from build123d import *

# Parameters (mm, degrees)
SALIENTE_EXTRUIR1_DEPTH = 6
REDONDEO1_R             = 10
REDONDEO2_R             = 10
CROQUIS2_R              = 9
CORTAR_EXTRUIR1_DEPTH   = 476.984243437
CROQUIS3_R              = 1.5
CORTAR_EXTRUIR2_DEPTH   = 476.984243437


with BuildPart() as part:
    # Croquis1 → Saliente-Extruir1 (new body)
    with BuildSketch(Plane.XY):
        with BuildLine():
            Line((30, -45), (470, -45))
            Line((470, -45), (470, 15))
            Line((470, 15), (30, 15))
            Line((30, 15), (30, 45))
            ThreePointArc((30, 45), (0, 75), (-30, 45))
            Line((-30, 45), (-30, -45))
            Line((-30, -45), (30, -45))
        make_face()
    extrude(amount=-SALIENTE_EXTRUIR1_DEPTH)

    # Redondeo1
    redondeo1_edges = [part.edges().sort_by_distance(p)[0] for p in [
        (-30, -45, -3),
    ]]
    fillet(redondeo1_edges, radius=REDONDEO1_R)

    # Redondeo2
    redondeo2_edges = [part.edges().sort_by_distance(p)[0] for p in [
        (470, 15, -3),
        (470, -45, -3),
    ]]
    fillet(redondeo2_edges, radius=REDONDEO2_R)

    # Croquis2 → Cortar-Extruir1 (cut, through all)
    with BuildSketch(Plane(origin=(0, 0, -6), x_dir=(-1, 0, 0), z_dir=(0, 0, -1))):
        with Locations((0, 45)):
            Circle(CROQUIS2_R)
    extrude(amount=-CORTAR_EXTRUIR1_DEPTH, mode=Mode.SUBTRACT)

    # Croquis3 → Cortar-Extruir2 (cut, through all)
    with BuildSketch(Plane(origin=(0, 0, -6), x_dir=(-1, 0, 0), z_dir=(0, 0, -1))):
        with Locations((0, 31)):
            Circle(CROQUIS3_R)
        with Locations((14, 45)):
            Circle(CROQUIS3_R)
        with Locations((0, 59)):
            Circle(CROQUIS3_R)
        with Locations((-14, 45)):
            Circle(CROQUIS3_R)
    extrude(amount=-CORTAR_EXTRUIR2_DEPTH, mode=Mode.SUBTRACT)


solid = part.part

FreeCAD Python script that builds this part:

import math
import FreeCAD as App
import Part
import Sketcher
Q = App.Units.Quantity


def edges_at(feature, points):
    """Names of the edges that pass closest to the given points."""
    edges = feature.Shape.Edges
    near = lambda p: min(range(len(edges)), key=lambda i: edges[i].distToShape(Part.Vertex(*p))[0])
    return sorted({f"Edge{near(p) + 1}" for p in points})

doc = App.newDocument("Part")
body = doc.addObject("PartDesign::Body", "Body")

# Sketch on XY plane
sketch1 = body.newObject("Sketcher::SketchObject", "Sketch")
sketch1.AttachmentSupport = (doc.getObject("XY_Plane"), [""])
sketch1.MapMode = "FlatFace"
sketch1.addGeometry([
    Part.LineSegment(App.Vector(470, -45, 0), App.Vector(470, 15, 0)),  # 0
    Part.LineSegment(App.Vector(470, 15, 0), App.Vector(30, 15, 0)),  # 1
    Part.LineSegment(App.Vector(30, 15, 0), App.Vector(30, 45, 0)),  # 2
    Part.ArcOfCircle(Part.Circle(App.Vector(0, 45, 0), App.Vector(0, 0, 1), 30), math.radians(0), math.radians(180)),  # 3
    Part.LineSegment(App.Vector(-30, 45, 0), App.Vector(-30, -45, 0)),  # 4
    Part.LineSegment(App.Vector(-30, -45, 0), App.Vector(470, -45, 0)),  # 5
], False)
sketch1.addConstraint([
    Sketcher.Constraint("Coincident", 0, 2, 1, 1),
    Sketcher.Constraint("Coincident", 1, 2, 2, 1),
    Sketcher.Constraint("Tangent", 2, 2, 3, 1),
    Sketcher.Constraint("Tangent", 3, 2, 4, 1),
    Sketcher.Constraint("Coincident", 4, 2, 5, 1),
    Sketcher.Constraint("Coincident", 5, 2, 0, 1),
    Sketcher.Constraint("Vertical", 0),
    Sketcher.Constraint("Horizontal", 1),
    Sketcher.Constraint("Vertical", 2),
    Sketcher.Constraint("Vertical", 4),
    Sketcher.Constraint("Horizontal", 5),
    Sketcher.Constraint("Symmetric", 2, 2, 4, 2, -1, 1),
    Sketcher.Constraint("Radius", 3, Q("30 mm")),
    Sketcher.Constraint("DistanceX", 1, 2, 1, 1, Q("440 mm")),
    Sketcher.Constraint("DistanceY", 0, 1, 0, 2, Q("60 mm")),
    Sketcher.Constraint("DistanceY", 2, 1, 2, 2, Q("30 mm")),
])
pad1 = body.newObject("PartDesign::Pad", "Pad")
pad1.Profile = sketch1
pad1.Length = 6
pad1.Reversed = True
doc.recompute()

fillet = body.newObject("PartDesign::Fillet", "Fillet")
fillet.Base = (pad1, edges_at(pad1, [(-30, -45, -3)]))
fillet.Radius = 10
doc.recompute()

fillet2 = body.newObject("PartDesign::Fillet", "Fillet001")
fillet2.Base = (fillet, edges_at(fillet, [(470, 15, -3), (470, -45, -3)]))
fillet2.Radius = 10

# Sketch on XY plane
sketch2 = body.newObject("Sketcher::SketchObject", "Sketch001")
sketch2.AttachmentSupport = (doc.getObject("XY_Plane"), [""])
sketch2.MapMode = "FlatFace"
sketch2.AttachmentOffset = App.Placement(App.Vector(0, 0, -6), App.Rotation())
sketch2.addGeometry(Part.Circle(App.Vector(0, 45, 0), App.Vector(0, 0, 1), 9), False)
sketch2.addConstraint([
    Sketcher.Constraint("PointOnObject", 0, 3, -2),
    Sketcher.Constraint("Diameter", 0, Q("18 mm")),
    Sketcher.Constraint("DistanceY", -1, 1, 0, 3, Q("45 mm")),
])
pocket1 = body.newObject("PartDesign::Pocket", "Pocket")
pocket1.Profile = sketch2
pocket1.Type = "ThroughAll"
pocket1.Reversed = True

# Sketch on XY plane
sketch3 = body.newObject("Sketcher::SketchObject", "Sketch002")
sketch3.AttachmentSupport = (doc.getObject("XY_Plane"), [""])
sketch3.MapMode = "FlatFace"
sketch3.AttachmentOffset = App.Placement(App.Vector(0, 0, -6), App.Rotation())
sketch3.addGeometry([
    Part.Circle(App.Vector(0, 31, 0), App.Vector(0, 0, 1), 1.5),
    Part.Circle(App.Vector(-14, 45, 0), App.Vector(0, 0, 1), 1.5),
    Part.Circle(App.Vector(0, 59, 0), App.Vector(0, 0, 1), 1.5),
    Part.Circle(App.Vector(14, 45, 0), App.Vector(0, 0, 1), 1.5),
], False)
sketch3.addConstraint([
    Sketcher.Constraint("Equal", 0, 1),
    Sketcher.Constraint("Equal", 1, 2),
    Sketcher.Constraint("Equal", 2, 3),
    Sketcher.Constraint("Symmetric", 1, 3, 3, 3, -2),
    Sketcher.Constraint("PointOnObject", 0, 3, -2),
    Sketcher.Constraint("PointOnObject", 2, 3, -2),
    Sketcher.Constraint("Diameter", 0, Q("3 mm")),
    Sketcher.Constraint("DistanceY", -1, 1, 0, 3, Q("31 mm")),
    Sketcher.Constraint("DistanceX", 1, 3, -1, 1, Q("14 mm")),
    Sketcher.Constraint("DistanceY", -1, 1, 1, 3, Q("45 mm")),
    Sketcher.Constraint("DistanceY", -1, 1, 2, 3, Q("59 mm")),
])
pocket2 = body.newObject("PartDesign::Pocket", "Pocket001")
pocket2.Profile = sketch3
pocket2.Type = "ThroughAll"
pocket2.Reversed = True

doc.recompute()
